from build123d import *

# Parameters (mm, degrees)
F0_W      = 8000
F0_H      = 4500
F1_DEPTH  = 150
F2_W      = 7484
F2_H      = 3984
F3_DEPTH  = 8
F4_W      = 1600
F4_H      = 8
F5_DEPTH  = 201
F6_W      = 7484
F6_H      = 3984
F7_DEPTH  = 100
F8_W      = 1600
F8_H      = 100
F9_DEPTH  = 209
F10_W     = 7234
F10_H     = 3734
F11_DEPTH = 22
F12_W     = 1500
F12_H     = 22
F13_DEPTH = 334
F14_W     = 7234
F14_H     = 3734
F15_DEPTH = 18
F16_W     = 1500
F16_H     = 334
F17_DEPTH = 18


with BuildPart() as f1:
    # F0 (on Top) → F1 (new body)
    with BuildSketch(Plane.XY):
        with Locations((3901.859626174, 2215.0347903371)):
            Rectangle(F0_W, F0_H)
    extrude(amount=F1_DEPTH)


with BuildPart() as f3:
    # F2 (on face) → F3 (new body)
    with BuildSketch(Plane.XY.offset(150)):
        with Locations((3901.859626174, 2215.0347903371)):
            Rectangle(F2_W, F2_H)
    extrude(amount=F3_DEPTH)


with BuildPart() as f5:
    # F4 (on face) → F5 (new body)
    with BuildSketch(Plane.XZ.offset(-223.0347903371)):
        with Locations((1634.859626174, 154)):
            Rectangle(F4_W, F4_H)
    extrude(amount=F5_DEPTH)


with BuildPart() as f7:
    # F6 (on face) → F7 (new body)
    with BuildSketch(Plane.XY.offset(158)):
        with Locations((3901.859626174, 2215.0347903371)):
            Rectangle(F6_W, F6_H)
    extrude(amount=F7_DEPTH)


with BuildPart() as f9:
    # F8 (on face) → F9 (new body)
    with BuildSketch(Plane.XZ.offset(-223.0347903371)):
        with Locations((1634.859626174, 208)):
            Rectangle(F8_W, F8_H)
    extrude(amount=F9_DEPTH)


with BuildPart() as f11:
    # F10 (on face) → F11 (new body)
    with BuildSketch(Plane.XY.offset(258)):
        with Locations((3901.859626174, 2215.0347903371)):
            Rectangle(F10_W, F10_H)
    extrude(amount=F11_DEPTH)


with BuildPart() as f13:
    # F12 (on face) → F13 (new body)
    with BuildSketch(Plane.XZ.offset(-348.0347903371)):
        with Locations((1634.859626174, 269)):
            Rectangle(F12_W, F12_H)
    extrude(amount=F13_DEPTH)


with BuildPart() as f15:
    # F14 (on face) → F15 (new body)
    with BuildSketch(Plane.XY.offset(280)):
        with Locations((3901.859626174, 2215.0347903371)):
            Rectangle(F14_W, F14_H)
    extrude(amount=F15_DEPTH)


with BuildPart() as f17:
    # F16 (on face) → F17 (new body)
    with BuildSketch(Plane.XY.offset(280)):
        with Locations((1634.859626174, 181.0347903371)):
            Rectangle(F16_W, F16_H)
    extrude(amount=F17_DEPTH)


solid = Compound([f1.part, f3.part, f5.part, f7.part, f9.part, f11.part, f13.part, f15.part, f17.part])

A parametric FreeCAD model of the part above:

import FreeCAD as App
import Part
import Sketcher

V = App.Vector

doc = App.newDocument("Part")
params = doc.addObject("Spreadsheet::Sheet", "Params")
for row, (alias, value) in enumerate([
    ("sketch1_width", "8000 mm"),
    ("sketch1_height", "4500 mm"),
    ("pad1_length", "150 mm"),
    ("sketch2_width", "7484 mm"),
    ("sketch2_height", "3984 mm"),
    ("pad2_length", "8 mm"),
    ("sketch3_width", "1600 mm"),
    ("sketch3_height", "8 mm"),
    ("pad3_length", "201 mm"),
    ("sketch4_width", "7484 mm"),
    ("sketch4_height", "3984 mm"),
    ("pad4_length", "100 mm"),
    ("sketch5_width", "1600 mm"),
    ("sketch5_height", "100 mm"),
    ("pad5_length", "209 mm"),
    ("sketch6_width", "7234 mm"),
    ("sketch6_height", "3734 mm"),
    ("pad6_length", "22 mm"),
    ("sketch7_width", "1500 mm"),
    ("sketch7_height", "22 mm"),
    ("pad7_length", "334 mm"),
    ("sketch8_width", "7234 mm"),
    ("sketch8_height", "3734 mm"),
    ("pad8_length", "18 mm"),
    ("sketch9_width", "1500 mm"),
    ("sketch9_height", "334 mm"),
    ("pad9_length", "18 mm"),
], start=1):
    params.set(f"A{row}", alias)
    params.set(f"B{row}", "=" + value)
    params.setAlias(f"B{row}", alias)

body = doc.addObject("PartDesign::Body", "Body")

sketch1 = body.newObject("Sketcher::SketchObject", "Sketch")
sketch1.AttachmentSupport = (doc.getObject("XY_Plane"), [""])
sketch1.MapMode = "FlatFace"
sketch1.addGeometry(Part.LineSegment(V(-98.140374, 4465.03479, 0), V(-98.140374, -34.96521, 0)), False)
sketch1.addGeometry(Part.LineSegment(V(-98.140374, -34.96521, 0), V(7901.859626, -34.96521, 0)), False)
sketch1.addGeometry(Part.LineSegment(V(7901.859626, -34.96521, 0), V(7901.859626, 4465.03479, 0)), False)
sketch1.addGeometry(Part.LineSegment(V(7901.859626, 4465.03479, 0), V(-98.140374, 4465.03479, 0)), False)
sketch1.addConstraint(Sketcher.Constraint("Coincident", 0, 2, 1, 1))
sketch1.addConstraint(Sketcher.Constraint("Coincident", 1, 2, 2, 1))
sketch1.addConstraint(Sketcher.Constraint("Coincident", 2, 2, 3, 1))
sketch1.addConstraint(Sketcher.Constraint("Coincident", 3, 2, 0, 1))
sketch1.addConstraint(Sketcher.Constraint("Vertical", 0))
sketch1.addConstraint(Sketcher.Constraint("Horizontal", 1))
sketch1.addConstraint(Sketcher.Constraint("Vertical", 2))
sketch1.addConstraint(Sketcher.Constraint("Horizontal", 3))
sketch1.addConstraint(Sketcher.Constraint("DistanceX", 1, 1, 1, 2, 8000.0))
sketch1.addConstraint(Sketcher.Constraint("DistanceY", 0, 2, 0, 1, 4500.0))
sketch1.addConstraint(Sketcher.Constraint("DistanceY", 0, 2, -1, 1, 34.96521))
sketch1.addConstraint(Sketcher.Constraint("DistanceX", 0, 2, -1, 1, 98.140374))
sketch1.setExpression("Constraints[8]", "Params.sketch1_width")
sketch1.setExpression("Constraints[9]", "Params.sketch1_height")
pad1 = body.newObject("PartDesign::Pad", "Pad")
pad1.Profile = sketch1
pad1.setExpression("Length", "Params.pad1_length")
body2 = doc.addObject("PartDesign::Body", "Body001")

sketch2 = body2.newObject("Sketcher::SketchObject", "Sketch001")
sketch2.AttachmentSupport = (doc.getObject("XY_Plane001"), [""])
sketch2.MapMode = "FlatFace"
sketch2.AttachmentOffset = App.Placement(V(0, 0, 150), App.Rotation())
sketch2.addGeometry(Part.LineSegment(V(159.859626, 4207.03479, 0), V(159.859626, 223.03479, 0)), False)
sketch2.addGeometry(Part.LineSegment(V(159.859626, 223.03479, 0), V(7643.859626, 223.03479, 0)), False)
sketch2.addGeometry(Part.LineSegment(V(7643.859626, 223.03479, 0), V(7643.859626, 4207.03479, 0)), False)
sketch2.addGeometry(Part.LineSegment(V(7643.859626, 4207.03479, 0), V(159.859626, 4207.03479, 0)), False)
sketch2.addConstraint(Sketcher.Constraint("Coincident", 0, 2, 1, 1))
sketch2.addConstraint(Sketcher.Constraint("Coincident", 1, 2, 2, 1))
sketch2.addConstraint(Sketcher.Constraint("Coincident", 2, 2, 3, 1))
sketch2.addConstraint(Sketcher.Constraint("Coincident", 3, 2, 0, 1))
sketch2.addConstraint(Sketcher.Constraint("Vertical", 0))
sketch2.addConstraint(Sketcher.Constraint("Horizontal", 1))
sketch2.addConstraint(Sketcher.Constraint("Vertical", 2))
sketch2.addConstraint(Sketcher.Constraint("Horizontal", 3))
sketch2.addConstraint(Sketcher.Constraint("DistanceX", 1, 1, 1, 2, 7484.0))
sketch2.addConstraint(Sketcher.Constraint("DistanceY", 0, 2, 0, 1, 3984.0))
sketch2.addConstraint(Sketcher.Constraint("DistanceY", -1, 1, 0, 2, 223.03479))
sketch2.addConstraint(Sketcher.Constraint("DistanceX", -1, 1, 0, 2, 159.859626))
sketch2.setExpression("Constraints[8]", "Params.sketch2_width")
sketch2.setExpression("Constraints[9]", "Params.sketch2_height")
pad2 = body2.newObject("PartDesign::Pad", "Pad001")
pad2.Profile = sketch2
pad2.setExpression("Length", "Params.pad2_length")
body3 = doc.addObject("PartDesign::Body", "Body002")

sketch3 = body3.newObject("Sketcher::SketchObject", "Sketch002")
sketch3.AttachmentSupport = (doc.getObject("XZ_Plane002"), [""])
sketch3.MapMode = "FlatFace"
sketch3.AttachmentOffset = App.Placement(V(0, 0, -223.03479), App.Rotation())
sketch3.addGeometry(Part.LineSegment(V(834.859626, 158, 0), V(834.859626, 150, 0)), False)
sketch3.addGeometry(Part.LineSegment(V(834.859626, 150, 0), V(2434.859626, 150, 0)), False)
sketch3.addGeometry(Part.LineSegment(V(2434.859626, 150, 0), V(2434.859626, 158, 0)), False)
sketch3.addGeometry(Part.LineSegment(V(2434.859626, 158, 0), V(834.859626, 158, 0)), False)
sketch3.addConstraint(Sketcher.Constraint("Coincident", 0, 2, 1, 1))
sketch3.addConstraint(Sketcher.Constraint("Coincident", 1, 2, 2, 1))
sketch3.addConstraint(Sketcher.Constraint("Coincident", 2, 2, 3, 1))
sketch3.addConstraint(Sketcher.Constraint("Coincident", 3, 2, 0, 1))
sketch3.addConstraint(Sketcher.Constraint("Vertical", 0))
sketch3.addConstraint(Sketcher.Constraint("Horizontal", 1))
sketch3.addConstraint(Sketcher.Constraint("Vertical", 2))
sketch3.addConstraint(Sketcher.Constraint("Horizontal", 3))
sketch3.addConstraint(Sketcher.Constraint("DistanceX", 1, 1, 1, 2, 1600.0))
sketch3.addConstraint(Sketcher.Constraint("DistanceY", 0, 2, 0, 1, 8.0))
sketch3.addConstraint(Sketcher.Constraint("DistanceY", -1, 1, 0, 2, 150.0))
sketch3.addConstraint(Sketcher.Constraint("DistanceX", -1, 1, 0, 2, 834.859626))
sketch3.setExpression("Constraints[8]", "Params.sketch3_width")
sketch3.setExpression("Constraints[9]", "Params.sketch3_height")
pad3 = body3.newObject("PartDesign::Pad", "Pad002")
pad3.Profile = sketch3
pad3.setExpression("Length", "Params.pad3_length")
body4 = doc.addObject("PartDesign::Body", "Body003")

sketch4 = body4.newObject("Sketcher::SketchObject", "Sketch003")
sketch4.AttachmentSupport = (doc.getObject("XY_Plane003"), [""])
sketch4.MapMode = "FlatFace"
sketch4.AttachmentOffset = App.Placement(V(0, 0, 158), App.Rotation())
sketch4.addGeometry(Part.LineSegment(V(159.859626, 4207.03479, 0), V(159.859626, 223.03479, 0)), False)
sketch4.addGeometry(Part.LineSegment(V(159.859626, 223.03479, 0), V(7643.859626, 223.03479, 0)), False)
sketch4.addGeometry(Part.LineSegment(V(7643.859626, 223.03479, 0), V(7643.859626, 4207.03479, 0)), False)
sketch4.addGeometry(Part.LineSegment(V(7643.859626, 4207.03479, 0), V(159.859626, 4207.03479, 0)), False)
sketch4.addConstraint(Sketcher.Constraint("Coincident", 0, 2, 1, 1))
sketch4.addConstraint(Sketcher.Constraint("Coincident", 1, 2, 2, 1))
sketch4.addConstraint(Sketcher.Constraint("Coincident", 2, 2, 3, 1))
sketch4.addConstraint(Sketcher.Constraint("Coincident", 3, 2, 0, 1))
sketch4.addConstraint(Sketcher.Constraint("Vertical", 0))
sketch4.addConstraint(Sketcher.Constraint("Horizontal", 1))
sketch4.addConstraint(Sketcher.Constraint("Vertical", 2))
sketch4.addConstraint(Sketcher.Constraint("Horizontal", 3))
sketch4.addConstraint(Sketcher.Constraint("DistanceX", 1, 1, 1, 2, 7484.0))
sketch4.addConstraint(Sketcher.Constraint("DistanceY", 0, 2, 0, 1, 3984.0))
sketch4.addConstraint(Sketcher.Constraint("DistanceY", -1, 1, 0, 2, 223.03479))
sketch4.addConstraint(Sketcher.Constraint("DistanceX", -1, 1, 0, 2, 159.859626))
sketch4.setExpression("Constraints[8]", "Params.sketch4_width")
sketch4.setExpression("Constraints[9]", "Params.sketch4_height")
pad4 = body4.newObject("PartDesign::Pad", "Pad003")
pad4.Profile = sketch4
pad4.setExpression("Length", "Params.pad4_length")
body5 = doc.addObject("PartDesign::Body", "Body004")

sketch5 = body5.newObject("Sketcher::SketchObject", "Sketch004")
sketch5.AttachmentSupport = (doc.getObject("XZ_Plane004"), [""])
sketch5.MapMode = "FlatFace"
sketch5.AttachmentOffset = App.Placement(V(0, 0, -223.03479), App.Rotation())
sketch5.addGeometry(Part.LineSegment(V(834.859626, 258, 0), V(834.859626, 158, 0)), False)
sketch5.addGeometry(Part.LineSegment(V(834.859626, 158, 0), V(2434.859626, 158, 0)), False)
sketch5.addGeometry(Part.LineSegment(V(2434.859626, 158, 0), V(2434.859626, 258, 0)), False)
sketch5.addGeometry(Part.LineSegment(V(2434.859626, 258, 0), V(834.859626, 258, 0)), False)
sketch5.addConstraint(Sketcher.Constraint("Coincident", 0, 2, 1, 1))
sketch5.addConstraint(Sketcher.Constraint("Coincident", 1, 2, 2, 1))
sketch5.addConstraint(Sketcher.Constraint("Coincident", 2, 2, 3, 1))
sketch5.addConstraint(Sketcher.Constraint("Coincident", 3, 2, 0, 1))
sketch5.addConstraint(Sketcher.Constraint("Vertical", 0))
sketch5.addConstraint(Sketcher.Constraint("Horizontal", 1))
sketch5.addConstraint(Sketcher.Constraint("Vertical", 2))
sketch5.addConstraint(Sketcher.Constraint("Horizontal", 3))
sketch5.addConstraint(Sketcher.Constraint("DistanceX", 1, 1, 1, 2, 1600.0))
sketch5.addConstraint(Sketcher.Constraint("DistanceY", 0, 2, 0, 1, 100.0))
sketch5.addConstraint(Sketcher.Constraint("DistanceY", -1, 1, 0, 2, 158.0))
sketch5.addConstraint(Sketcher.Constraint("DistanceX", -1, 1, 0, 2, 834.859626))
sketch5.setExpression("Constraints[8]", "Params.sketch5_width")
sketch5.setExpression("Constraints[9]", "Params.sketch5_height")
pad5 = body5.newObject("PartDesign::Pad", "Pad004")
pad5.Profile = sketch5
pad5.setExpression("Length", "Params.pad5_length")
body6 = doc.addObject("PartDesign::Body", "Body005")

sketch6 = body6.newObject("Sketcher::SketchObject", "Sketch005")
sketch6.AttachmentSupport = (doc.getObject("XY_Plane005"), [""])
sketch6.MapMode = "FlatFace"
sketch6.AttachmentOffset = App.Placement(V(0, 0, 258), App.Rotation())
sketch6.addGeometry(Part.LineSegment(V(284.859626, 4082.03479, 0), V(284.859626, 348.03479, 0)), False)
sketch6.addGeometry(Part.LineSegment(V(284.859626, 348.03479, 0), V(7518.859626, 348.03479, 0)), False)
sketch6.addGeometry(Part.LineSegment(V(7518.859626, 348.03479, 0), V(7518.859626, 4082.03479, 0)), False)
sketch6.addGeometry(Part.LineSegment(V(7518.859626, 4082.03479, 0), V(284.859626, 4082.03479, 0)), False)
sketch6.addConstraint(Sketcher.Constraint("Coincident", 0, 2, 1, 1))
sketch6.addConstraint(Sketcher.Constraint("Coincident", 1, 2, 2, 1))
sketch6.addConstraint(Sketcher.Constraint("Coincident", 2, 2, 3, 1))
sketch6.addConstraint(Sketcher.Constraint("Coincident", 3, 2, 0, 1))
sketch6.addConstraint(Sketcher.Constraint("Vertical", 0))
sketch6.addConstraint(Sketcher.Constraint("Horizontal", 1))
sketch6.addConstraint(Sketcher.Constraint("Vertical", 2))
sketch6.addConstraint(Sketcher.Constraint("Horizontal", 3))
sketch6.addConstraint(Sketcher.Constraint("DistanceX", 1, 1, 1, 2, 7234.0))
sketch6.addConstraint(Sketcher.Constraint("DistanceY", 0, 2, 0, 1, 3734.0))
sketch6.addConstraint(Sketcher.Constraint("DistanceY", -1, 1, 0, 2, 348.03479))
sketch6.addConstraint(Sketcher.Constraint("DistanceX", -1, 1, 0, 2, 284.859626))
sketch6.setExpression("Constraints[8]", "Params.sketch6_width")
sketch6.setExpression("Constraints[9]", "Params.sketch6_height")
pad6 = body6.newObject("PartDesign::Pad", "Pad005")
pad6.Profile = sketch6
pad6.setExpression("Length", "Params.pad6_length")
body7 = doc.addObject("PartDesign::Body", "Body006")

sketch7 = body7.newObject("Sketcher::SketchObject", "Sketch006")
sketch7.AttachmentSupport = (doc.getObject("XZ_Plane006"), [""])
sketch7.MapMode = "FlatFace"
sketch7.AttachmentOffset = App.Placement(V(0, 0, -348.03479), App.Rotation())
sketch7.addGeometry(Part.LineSegment(V(884.859626, 280, 0), V(884.859626, 258, 0)), False)
sketch7.addGeometry(Part.LineSegment(V(884.859626, 258, 0), V(2384.859626, 258, 0)), False)
sketch7.addGeometry(Part.LineSegment(V(2384.859626, 258, 0), V(2384.859626, 280, 0)), False)
sketch7.addGeometry(Part.LineSegment(V(2384.859626, 280, 0), V(884.859626, 280, 0)), False)
sketch7.addConstraint(Sketcher.Constraint("Coincident", 0, 2, 1, 1))
sketch7.addConstraint(Sketcher.Constraint("Coincident", 1, 2, 2, 1))
sketch7.addConstraint(Sketcher.Constraint("Coincident", 2, 2, 3, 1))
sketch7.addConstraint(Sketcher.Constraint("Coincident", 3, 2, 0, 1))
sketch7.addConstraint(Sketcher.Constraint("Vertical", 0))
sketch7.addConstraint(Sketcher.Constraint("Horizontal", 1))
sketch7.addConstraint(Sketcher.Constraint("Vertical", 2))
sketch7.addConstraint(Sketcher.Constraint("Horizontal", 3))
sketch7.addConstraint(Sketcher.Constraint("DistanceX", 1, 1, 1, 2, 1500.0))
sketch7.addConstraint(Sketcher.Constraint("DistanceY", 0, 2, 0, 1, 22.0))
sketch7.addConstraint(Sketcher.Constraint("DistanceY", -1, 1, 0, 2, 258.0))
sketch7.addConstraint(Sketcher.Constraint("DistanceX", -1, 1, 0, 2, 884.859626))
sketch7.setExpression("Constraints[8]", "Params.sketch7_width")
sketch7.setExpression("Constraints[9]", "Params.sketch7_height")
pad7 = body7.newObject("PartDesign::Pad", "Pad006")
pad7.Profile = sketch7
pad7.setExpression("Length", "Params.pad7_length")
body8 = doc.addObject("PartDesign::Body", "Body007")

sketch8 = body8.newObject("Sketcher::SketchObject", "Sketch007")
sketch8.AttachmentSupport = (doc.getObject("XY_Plane007"), [""])
sketch8.MapMode = "FlatFace"
sketch8.AttachmentOffset = App.Placement(V(0, 0, 280), App.Rotation())
sketch8.addGeometry(Part.LineSegment(V(284.859626, 4082.03479, 0), V(284.859626, 348.03479, 0)), False)
sketch8.addGeometry(Part.LineSegment(V(284.859626, 348.03479, 0), V(7518.859626, 348.03479, 0)), False)
sketch8.addGeometry(Part.LineSegment(V(7518.859626, 348.03479, 0), V(7518.859626, 4082.03479, 0)), False)
sketch8.addGeometry(Part.LineSegment(V(7518.859626, 4082.03479, 0), V(284.859626, 4082.03479, 0)), False)
sketch8.addConstraint(Sketcher.Constraint("Coincident", 0, 2, 1, 1))
sketch8.addConstraint(Sketcher.Constraint("Coincident", 1, 2, 2, 1))
sketch8.addConstraint(Sketcher.Constraint("Coincident", 2, 2, 3, 1))
sketch8.addConstraint(Sketcher.Constraint("Coincident", 3, 2, 0, 1))
sketch8.addConstraint(Sketcher.Constraint("Vertical", 0))
sketch8.addConstraint(Sketcher.Constraint("Horizontal", 1))
sketch8.addConstraint(Sketcher.Constraint("Vertical", 2))
sketch8.addConstraint(Sketcher.Constraint("Horizontal", 3))
sketch8.addConstraint(Sketcher.Constraint("DistanceX", 1, 1, 1, 2, 7234.0))
sketch8.addConstraint(Sketcher.Constraint("DistanceY", 0, 2, 0, 1, 3734.0))
sketch8.addConstraint(Sketcher.Constraint("DistanceY", -1, 1, 0, 2, 348.03479))
sketch8.addConstraint(Sketcher.Constraint("DistanceX", -1, 1, 0, 2, 284.859626))
sketch8.setExpression("Constraints[8]", "Params.sketch8_width")
sketch8.setExpression("Constraints[9]", "Params.sketch8_height")
pad8 = body8.newObject("PartDesign::Pad", "Pad007")
pad8.Profile = sketch8
pad8.setExpression("Length", "Params.pad8_length")
body9 = doc.addObject("PartDesign::Body", "Body008")

sketch9 = body9.newObject("Sketcher::SketchObject", "Sketch008")
sketch9.AttachmentSupport = (doc.getObject("XY_Plane008"), [""])
sketch9.MapMode = "FlatFace"
sketch9.AttachmentOffset = App.Placement(V(0, 0, 280), App.Rotation())
sketch9.addGeometry(Part.LineSegment(V(884.859626, 348.03479, 0), V(884.859626, 14.03479, 0)), False)
sketch9.addGeometry(Part.LineSegment(V(884.859626, 14.03479, 0), V(2384.859626, 14.03479, 0)), False)
sketch9.addGeometry(Part.LineSegment(V(2384.859626, 14.03479, 0), V(2384.859626, 348.03479, 0)), False)
sketch9.addGeometry(Part.LineSegment(V(2384.859626, 348.03479, 0), V(884.859626, 348.03479, 0)), False)
sketch9.addConstraint(Sketcher.Constraint("Coincident", 0, 2, 1, 1))
sketch9.addConstraint(Sketcher.Constraint("Coincident", 1, 2, 2, 1))
sketch9.addConstraint(Sketcher.Constraint("Coincident", 2, 2, 3, 1))
sketch9.addConstraint(Sketcher.Constraint("Coincident", 3, 2, 0, 1))
sketch9.addConstraint(Sketcher.Constraint("Vertical", 0))
sketch9.addConstraint(Sketcher.Constraint("Horizontal", 1))
sketch9.addConstraint(Sketcher.Constraint("Vertical", 2))
sketch9.addConstraint(Sketcher.Constraint("Horizontal", 3))
sketch9.addConstraint(Sketcher.Constraint("DistanceX", 1, 1, 1, 2, 1500.0))
sketch9.addConstraint(Sketcher.Constraint("DistanceY", 0, 2, 0, 1, 334.0))
sketch9.addConstraint(Sketcher.Constraint("DistanceY", -1, 1, 0, 2, 14.03479))
sketch9.addConstraint(Sketcher.Constraint("DistanceX", -1, 1, 0, 2, 884.859626))
sketch9.setExpression("Constraints[8]", "Params.sketch9_width")
sketch9.setExpression("Constraints[9]", "Params.sketch9_height")
pad9 = body9.newObject("PartDesign::Pad", "Pad008")
pad9.Profile = sketch9
pad9.setExpression("Length", "Params.pad9_length")

doc.recompute()
